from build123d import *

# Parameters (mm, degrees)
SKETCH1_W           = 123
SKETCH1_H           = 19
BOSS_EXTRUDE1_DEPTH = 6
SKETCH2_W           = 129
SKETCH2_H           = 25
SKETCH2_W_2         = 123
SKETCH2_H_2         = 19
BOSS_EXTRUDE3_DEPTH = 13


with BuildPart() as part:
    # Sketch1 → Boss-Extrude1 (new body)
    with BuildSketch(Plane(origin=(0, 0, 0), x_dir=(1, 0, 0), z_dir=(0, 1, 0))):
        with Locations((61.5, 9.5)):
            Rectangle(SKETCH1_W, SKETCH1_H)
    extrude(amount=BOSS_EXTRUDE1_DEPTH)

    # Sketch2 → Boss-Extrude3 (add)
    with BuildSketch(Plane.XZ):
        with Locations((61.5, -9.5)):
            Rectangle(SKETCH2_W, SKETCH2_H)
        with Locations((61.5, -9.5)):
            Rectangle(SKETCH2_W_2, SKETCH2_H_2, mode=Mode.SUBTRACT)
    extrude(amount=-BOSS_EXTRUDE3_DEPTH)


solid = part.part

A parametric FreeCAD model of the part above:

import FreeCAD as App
import Part
import Sketcher
from FreeCAD import Vector
Q = App.Units.Quantity

doc = App.newDocument("Part")
body = doc.addObject("PartDesign::Body", "Body")

sketch1 = doc.addObject("Sketcher::SketchObject", "Sketch")
body.addObject(sketch1)
sketch1.AttachmentSupport = (doc.XZ_Plane, [""])
sketch1.MapMode = "FlatFace"
sketch1.addGeometry([
    Part.LineSegment(Vector(0, -19, 0), Vector(0, 0, 0)),
    Part.LineSegment(Vector(0, 0, 0), Vector(123, 0, 0)),
    Part.LineSegment(Vector(123, 0, 0), Vector(123, -19, 0)),
    Part.LineSegment(Vector(123, -19, 0), Vector(0, -19, 0)),
], False)
sketch1.addConstraint([
    Sketcher.Constraint("Coincident", 0, 2, 1, 1),
    Sketcher.Constraint("Coincident", 1, 2, 2, 1),
    Sketcher.Constraint("Coincident", 2, 2, 3, 1),
    Sketcher.Constraint("Coincident", 3, 2, 0, 1),
    Sketcher.Constraint("Vertical", 0),
    Sketcher.Constraint("Horizontal", 1),
    Sketcher.Constraint("Vertical", 2),
    Sketcher.Constraint("Horizontal", 3),
    Sketcher.Constraint("Coincident", 0, 2, -1, 1),
    Sketcher.Constraint("DistanceX", 1, 1, 1, 2, Q("123 mm")),
    Sketcher.Constraint("DistanceY", 0, 1, 0, 2, Q("19 mm")),
])
pad1 = doc.addObject("PartDesign::Pad", "Pad")
body.addObject(pad1)
pad1.Profile = sketch1
pad1.Length = 6
pad1.Reversed = True

sketch2 = doc.addObject("Sketcher::SketchObject", "Sketch001")
body.addObject(sketch2)
sketch2.AttachmentSupport = (doc.XZ_Plane, [""])
sketch2.MapMode = "FlatFace"
sketch2.addGeometry([
    Part.LineSegment(Vector(-3, 3, 0), Vector(-3, -22, 0)),
    Part.LineSegment(Vector(-3, -22, 0), Vector(126, -22, 0)),
    Part.LineSegment(Vector(126, -22, 0), Vector(126, 3, 0)),
    Part.LineSegment(Vector(126, 3, 0), Vector(-3, 3, 0)),
    Part.LineSegment(Vector(123, -19, 0), Vector(0, -19, 0)),
    Part.LineSegment(Vector(0, -19, 0), Vector(0, 0, 0)),
    Part.LineSegment(Vector(0, 0, 0), Vector(123, 0, 0)),
    Part.LineSegment(Vector(123, 0, 0), Vector(123, -19, 0)),
], False)
sketch2.addConstraint([
    Sketcher.Constraint("Coincident", 0, 2, 1, 1),
    Sketcher.Constraint("Coincident", 1, 2, 2, 1),
    Sketcher.Constraint("Coincident", 2, 2, 3, 1),
    Sketcher.Constraint("Coincident", 3, 2, 0, 1),
    Sketcher.Constraint("Coincident", 4, 2, 5, 1),
    Sketcher.Constraint("Coincident", 5, 2, 6, 1),
    Sketcher.Constraint("Coincident", 6, 2, 7, 1),
    Sketcher.Constraint("Coincident", 7, 2, 4, 1),
    Sketcher.Constraint("Vertical", 0),
    Sketcher.Constraint("Horizontal", 1),
    Sketcher.Constraint("Vertical", 2),
    Sketcher.Constraint("Horizontal", 3),
    Sketcher.Constraint("Horizontal", 4),
    Sketcher.Constraint("Vertical", 5),
    Sketcher.Constraint("Horizontal", 6),
    Sketcher.Constraint("Vertical", 7),
    Sketcher.Constraint("Coincident", 5, 2, -1, 1),
    Sketcher.Constraint("DistanceX", 1, 1, 1, 2, Q("129 mm")),
    Sketcher.Constraint("DistanceX", 4, 2, 4, 1, Q("123 mm")),
    Sketcher.Constraint("DistanceY", 0, 2, 0, 1, Q("25 mm")),
    Sketcher.Constraint("DistanceY", 5, 1, 5, 2, Q("19 mm")),
    Sketcher.Constraint("DistanceX", 0, 2, -1, 1, Q("3 mm")),
    Sketcher.Constraint("DistanceY", 0, 2, -1, 1, Q("22 mm")),
])
pad2 = doc.addObject("PartDesign::Pad", "Pad001")
body.addObject(pad2)
pad2.Profile = sketch2
pad2.Length = 13
pad2.Reversed = True

doc.recompute()
